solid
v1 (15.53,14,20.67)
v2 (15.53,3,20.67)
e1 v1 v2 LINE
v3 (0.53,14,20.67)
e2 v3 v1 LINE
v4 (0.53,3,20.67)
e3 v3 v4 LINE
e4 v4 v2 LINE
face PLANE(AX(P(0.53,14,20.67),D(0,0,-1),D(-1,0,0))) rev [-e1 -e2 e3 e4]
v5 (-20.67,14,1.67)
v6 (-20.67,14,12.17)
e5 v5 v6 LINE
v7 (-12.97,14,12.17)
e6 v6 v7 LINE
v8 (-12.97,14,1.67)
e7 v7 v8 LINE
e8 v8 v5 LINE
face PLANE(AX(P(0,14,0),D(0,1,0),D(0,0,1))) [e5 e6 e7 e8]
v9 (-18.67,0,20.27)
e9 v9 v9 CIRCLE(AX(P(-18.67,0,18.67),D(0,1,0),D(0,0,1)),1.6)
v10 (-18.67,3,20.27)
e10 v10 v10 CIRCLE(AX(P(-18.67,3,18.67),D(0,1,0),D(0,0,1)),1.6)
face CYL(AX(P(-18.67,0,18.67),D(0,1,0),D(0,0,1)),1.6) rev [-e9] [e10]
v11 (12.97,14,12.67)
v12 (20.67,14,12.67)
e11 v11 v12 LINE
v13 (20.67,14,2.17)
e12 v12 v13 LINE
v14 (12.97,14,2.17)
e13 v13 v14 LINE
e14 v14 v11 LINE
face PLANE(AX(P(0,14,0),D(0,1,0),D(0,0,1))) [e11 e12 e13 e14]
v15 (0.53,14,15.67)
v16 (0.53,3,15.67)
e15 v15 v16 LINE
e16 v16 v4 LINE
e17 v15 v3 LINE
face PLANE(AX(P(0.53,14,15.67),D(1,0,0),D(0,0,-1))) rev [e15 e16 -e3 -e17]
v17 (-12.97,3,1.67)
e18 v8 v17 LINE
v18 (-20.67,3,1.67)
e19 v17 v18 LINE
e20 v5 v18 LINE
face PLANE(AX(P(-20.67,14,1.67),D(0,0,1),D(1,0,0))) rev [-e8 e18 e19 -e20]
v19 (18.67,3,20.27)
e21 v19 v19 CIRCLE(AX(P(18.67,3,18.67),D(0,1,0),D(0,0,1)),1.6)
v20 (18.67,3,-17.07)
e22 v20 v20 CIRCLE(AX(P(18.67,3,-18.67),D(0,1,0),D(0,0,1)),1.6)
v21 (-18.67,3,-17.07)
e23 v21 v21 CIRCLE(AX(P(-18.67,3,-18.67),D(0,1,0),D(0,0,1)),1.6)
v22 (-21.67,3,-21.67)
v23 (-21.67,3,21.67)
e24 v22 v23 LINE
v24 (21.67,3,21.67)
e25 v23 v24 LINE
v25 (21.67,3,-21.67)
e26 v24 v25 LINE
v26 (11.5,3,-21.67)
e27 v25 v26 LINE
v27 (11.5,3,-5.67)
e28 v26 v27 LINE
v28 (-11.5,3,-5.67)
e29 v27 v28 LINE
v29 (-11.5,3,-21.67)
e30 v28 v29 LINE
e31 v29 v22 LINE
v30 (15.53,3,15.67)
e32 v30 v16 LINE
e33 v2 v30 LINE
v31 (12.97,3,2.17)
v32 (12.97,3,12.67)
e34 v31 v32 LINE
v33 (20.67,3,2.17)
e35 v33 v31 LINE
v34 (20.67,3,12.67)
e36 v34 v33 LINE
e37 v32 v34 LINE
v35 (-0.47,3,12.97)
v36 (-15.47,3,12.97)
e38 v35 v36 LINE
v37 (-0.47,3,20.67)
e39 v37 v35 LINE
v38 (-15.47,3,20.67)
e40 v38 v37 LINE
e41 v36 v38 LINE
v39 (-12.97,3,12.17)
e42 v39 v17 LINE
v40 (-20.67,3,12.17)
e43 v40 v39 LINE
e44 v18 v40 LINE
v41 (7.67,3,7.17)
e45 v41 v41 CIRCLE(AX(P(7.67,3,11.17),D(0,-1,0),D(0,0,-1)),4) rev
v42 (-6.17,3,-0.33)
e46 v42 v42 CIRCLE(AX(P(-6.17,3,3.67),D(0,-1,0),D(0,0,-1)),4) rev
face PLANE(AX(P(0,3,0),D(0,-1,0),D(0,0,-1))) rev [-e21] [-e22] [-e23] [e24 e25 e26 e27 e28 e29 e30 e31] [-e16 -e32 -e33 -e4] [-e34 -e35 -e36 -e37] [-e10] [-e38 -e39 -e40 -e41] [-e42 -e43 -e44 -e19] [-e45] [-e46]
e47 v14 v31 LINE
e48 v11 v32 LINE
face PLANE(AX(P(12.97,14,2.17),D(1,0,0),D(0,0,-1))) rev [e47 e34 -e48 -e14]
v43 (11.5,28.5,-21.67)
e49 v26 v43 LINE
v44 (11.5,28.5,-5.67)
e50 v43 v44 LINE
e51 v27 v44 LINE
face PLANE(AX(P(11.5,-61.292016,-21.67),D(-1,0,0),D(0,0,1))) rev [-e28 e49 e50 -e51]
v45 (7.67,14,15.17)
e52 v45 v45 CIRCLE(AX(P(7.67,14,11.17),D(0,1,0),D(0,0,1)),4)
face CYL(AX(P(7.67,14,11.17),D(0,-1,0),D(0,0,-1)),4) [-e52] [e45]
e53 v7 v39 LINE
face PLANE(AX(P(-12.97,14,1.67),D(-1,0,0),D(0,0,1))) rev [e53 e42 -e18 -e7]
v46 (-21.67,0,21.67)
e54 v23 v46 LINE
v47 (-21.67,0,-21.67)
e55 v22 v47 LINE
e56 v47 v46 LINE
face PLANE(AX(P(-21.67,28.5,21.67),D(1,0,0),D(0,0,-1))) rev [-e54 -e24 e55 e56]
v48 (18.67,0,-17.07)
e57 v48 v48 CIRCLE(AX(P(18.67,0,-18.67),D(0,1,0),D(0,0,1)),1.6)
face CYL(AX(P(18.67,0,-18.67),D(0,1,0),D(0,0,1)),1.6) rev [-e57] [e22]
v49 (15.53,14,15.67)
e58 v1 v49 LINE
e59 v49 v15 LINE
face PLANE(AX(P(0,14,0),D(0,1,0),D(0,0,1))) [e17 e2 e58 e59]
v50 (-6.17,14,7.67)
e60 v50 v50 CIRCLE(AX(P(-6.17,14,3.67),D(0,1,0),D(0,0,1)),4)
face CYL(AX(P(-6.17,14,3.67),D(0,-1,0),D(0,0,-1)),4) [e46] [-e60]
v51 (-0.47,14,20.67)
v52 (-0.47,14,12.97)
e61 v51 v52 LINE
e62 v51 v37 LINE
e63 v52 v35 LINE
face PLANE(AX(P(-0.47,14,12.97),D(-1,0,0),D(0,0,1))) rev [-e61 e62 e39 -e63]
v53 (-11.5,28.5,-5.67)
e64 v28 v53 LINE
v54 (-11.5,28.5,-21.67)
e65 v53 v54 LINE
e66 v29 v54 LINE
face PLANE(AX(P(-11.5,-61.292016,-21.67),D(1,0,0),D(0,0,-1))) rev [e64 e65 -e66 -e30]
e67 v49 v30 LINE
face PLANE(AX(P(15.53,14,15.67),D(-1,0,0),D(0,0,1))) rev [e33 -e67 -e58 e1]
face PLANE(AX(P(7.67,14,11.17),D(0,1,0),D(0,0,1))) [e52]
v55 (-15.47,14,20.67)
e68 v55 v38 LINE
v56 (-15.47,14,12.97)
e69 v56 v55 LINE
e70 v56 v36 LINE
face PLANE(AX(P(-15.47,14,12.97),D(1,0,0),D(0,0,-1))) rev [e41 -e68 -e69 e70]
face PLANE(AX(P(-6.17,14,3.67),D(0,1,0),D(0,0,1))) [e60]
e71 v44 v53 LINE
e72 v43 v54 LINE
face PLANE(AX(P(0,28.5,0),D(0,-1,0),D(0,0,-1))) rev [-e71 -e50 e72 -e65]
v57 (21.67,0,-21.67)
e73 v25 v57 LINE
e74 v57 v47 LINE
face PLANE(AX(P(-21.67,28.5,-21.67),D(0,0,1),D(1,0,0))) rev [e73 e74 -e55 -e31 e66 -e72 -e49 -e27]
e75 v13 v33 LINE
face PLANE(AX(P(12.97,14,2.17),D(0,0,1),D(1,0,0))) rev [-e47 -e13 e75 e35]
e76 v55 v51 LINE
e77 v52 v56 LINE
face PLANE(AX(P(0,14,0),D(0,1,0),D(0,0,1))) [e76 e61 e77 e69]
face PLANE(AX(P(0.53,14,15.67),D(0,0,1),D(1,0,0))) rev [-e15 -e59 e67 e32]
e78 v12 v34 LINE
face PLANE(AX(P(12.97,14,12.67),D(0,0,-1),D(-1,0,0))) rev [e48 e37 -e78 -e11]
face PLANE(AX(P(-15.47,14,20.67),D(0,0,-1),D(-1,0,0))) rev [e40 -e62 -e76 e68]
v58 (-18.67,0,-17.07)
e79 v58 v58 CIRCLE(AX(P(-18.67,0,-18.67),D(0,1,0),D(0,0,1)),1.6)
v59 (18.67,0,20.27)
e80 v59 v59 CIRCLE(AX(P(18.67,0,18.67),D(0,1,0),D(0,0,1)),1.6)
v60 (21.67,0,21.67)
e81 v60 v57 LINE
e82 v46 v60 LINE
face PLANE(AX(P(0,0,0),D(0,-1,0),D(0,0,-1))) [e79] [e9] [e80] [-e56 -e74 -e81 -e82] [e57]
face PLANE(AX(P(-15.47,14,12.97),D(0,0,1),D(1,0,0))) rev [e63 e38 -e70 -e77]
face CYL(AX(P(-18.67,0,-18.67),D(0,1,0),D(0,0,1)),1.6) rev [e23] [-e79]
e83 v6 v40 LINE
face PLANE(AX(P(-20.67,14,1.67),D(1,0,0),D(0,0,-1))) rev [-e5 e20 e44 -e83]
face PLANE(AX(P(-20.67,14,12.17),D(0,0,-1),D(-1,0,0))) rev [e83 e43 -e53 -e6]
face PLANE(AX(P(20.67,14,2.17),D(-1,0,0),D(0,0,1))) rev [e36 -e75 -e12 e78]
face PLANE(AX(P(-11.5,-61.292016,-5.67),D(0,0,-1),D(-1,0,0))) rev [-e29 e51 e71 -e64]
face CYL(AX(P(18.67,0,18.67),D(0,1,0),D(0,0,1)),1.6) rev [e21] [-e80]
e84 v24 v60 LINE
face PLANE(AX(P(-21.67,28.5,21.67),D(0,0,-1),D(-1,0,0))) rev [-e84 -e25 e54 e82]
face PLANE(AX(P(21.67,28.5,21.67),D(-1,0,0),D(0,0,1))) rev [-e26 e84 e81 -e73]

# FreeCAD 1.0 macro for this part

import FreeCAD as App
import Part
import Sketcher
Q = App.Units.Quantity


def add_polygon(sketch, points):
    """Adds a closed chain of lines whose ends are joined by coincident constraints."""
    first, n = sketch.GeometryCount, len(points)
    for a, b in zip(points, points[1:] + points[:1]):
        sketch.addGeometry(Part.LineSegment(App.Vector(*a, 0), App.Vector(*b, 0)), False)
    for i in range(n):
        sketch.addConstraint(Sketcher.Constraint("Coincident", first + i, 2, first + (i + 1) % n, 1))

doc = App.newDocument("Part")
body = doc.addObject("PartDesign::Body", "Body")

# Sketch on XZ plane
sketch1 = body.newObject("Sketcher::SketchObject", "Sketch")
sketch1.AttachmentSupport = (doc.getObject("XZ_Plane"), [""])
sketch1.MapMode = "FlatFace"
add_polygon(sketch1, [(-21.67, -21.67), (-21.67, 21.67), (21.67, 21.67), (21.67, -21.67)])  # lines 0-3
sketch1.addConstraint(Sketcher.Constraint("Vertical", 0))
sketch1.addConstraint(Sketcher.Constraint("Horizontal", 1))
sketch1.addConstraint(Sketcher.Constraint("Vertical", 2))
sketch1.addConstraint(Sketcher.Constraint("Horizontal", 3))
sketch1.addConstraint(Sketcher.Constraint("Symmetric", 0, 2, 2, 2, -1, 1))
sketch1.addConstraint(Sketcher.Constraint("Equal", 3, 0))
sketch1.addConstraint(Sketcher.Constraint("DistanceX", 1, 1, 1, 2, Q("43.34 mm")))
pad1 = body.newObject("PartDesign::Pad", "Pad")
pad1.Profile = sketch1
pad1.Length = 28.5
pad1.Reversed = True

# Sketch on XZ plane
sketch2 = body.newObject("Sketcher::SketchObject", "Sketch001")
sketch2.AttachmentSupport = (doc.getObject("XZ_Plane"), [""])
sketch2.MapMode = "FlatFace"
sketch2.AttachmentOffset = App.Placement(App.Vector(0, 0, -28.5), App.Rotation())
add_polygon(sketch2, [(-11.5, -5.67), (-11.5, -21.67), (-21.67, -21.67), (-21.67, 21.67), (21.67, 21.67), (21.67, -21.67), (11.5, -21.67), (11.5, -5.67)])  # lines 0-7
sketch2.addConstraint(Sketcher.Constraint("Vertical", 0))
sketch2.addConstraint(Sketcher.Constraint("Horizontal", 1))
sketch2.addConstraint(Sketcher.Constraint("Vertical", 2))
sketch2.addConstraint(Sketcher.Constraint("Horizontal", 3))
sketch2.addConstraint(Sketcher.Constraint("Vertical", 4))
sketch2.addConstraint(Sketcher.Constraint("Horizontal", 5))
sketch2.addConstraint(Sketcher.Constraint("Vertical", 6))
sketch2.addConstraint(Sketcher.Constraint("Horizontal", 7))
sketch2.addConstraint(Sketcher.Constraint("Symmetric", 1, 2, 3, 2, -1, 1))
sketch2.addConstraint(Sketcher.Constraint("Symmetric", 0, 2, 5, 2, -2))
sketch2.addConstraint(Sketcher.Constraint("Equal", 3, 2))
sketch2.addConstraint(Sketcher.Constraint("DistanceX", 7, 2, 7, 1, Q("23 mm")))
sketch2.addConstraint(Sketcher.Constraint("DistanceY", 0, 2, 0, 1, Q("16 mm")))
sketch2.addConstraint(Sketcher.Constraint("DistanceX", 1, 2, 1, 1, Q("10.17 mm")))
pocket1 = body.newObject("PartDesign::Pocket", "Pocket")
pocket1.Profile = sketch2
pocket1.Length = 25.5
pocket1.Reversed = True

# Sketch on XZ plane
sketch3 = body.newObject("Sketcher::SketchObject", "Sketch002")
sketch3.AttachmentSupport = (doc.getObject("XZ_Plane"), [""])
sketch3.MapMode = "FlatFace"
sketch3.AttachmentOffset = App.Placement(App.Vector(0, 0, -3), App.Rotation())
sketch3.addGeometry(Part.Circle(App.Vector(-6.17, 3.67, 0), App.Vector(0, 0, 1), 4), False)  # 0
sketch3.addGeometry(Part.Circle(App.Vector(7.67, 11.17, 0), App.Vector(0, 0, 1), 4), False)  # 1
add_polygon(sketch3, [(-20.67, 1.67), (-20.67, 12.17), (-12.97, 12.17), (-12.97, 1.67)])  # lines 2-5
add_polygon(sketch3, [(-15.47, 12.97), (-15.47, 20.67), (-0.47, 20.67), (-0.47, 12.97)])  # lines 6-9
add_polygon(sketch3, [(0.53, 15.67), (0.53, 20.67), (15.53, 20.67), (15.53, 15.67)])  # lines 10-13
add_polygon(sketch3, [(12.97, 2.17), (12.97, 12.67), (20.67, 12.67), (20.67, 2.17)])  # lines 14-17
sketch3.addConstraint(Sketcher.Constraint("Vertical", 2))
sketch3.addConstraint(Sketcher.Constraint("Horizontal", 3))
sketch3.addConstraint(Sketcher.Constraint("Vertical", 4))
sketch3.addConstraint(Sketcher.Constraint("Horizontal", 5))
sketch3.addConstraint(Sketcher.Constraint("Vertical", 6))
sketch3.addConstraint(Sketcher.Constraint("Horizontal", 7))
sketch3.addConstraint(Sketcher.Constraint("Vertical", 8))
sketch3.addConstraint(Sketcher.Constraint("Horizontal", 9))
sketch3.addConstraint(Sketcher.Constraint("Vertical", 10))
sketch3.addConstraint(Sketcher.Constraint("Horizontal", 11))
sketch3.addConstraint(Sketcher.Constraint("Vertical", 12))
sketch3.addConstraint(Sketcher.Constraint("Horizontal", 13))
sketch3.addConstraint(Sketcher.Constraint("Vertical", 14))
sketch3.addConstraint(Sketcher.Constraint("Horizontal", 15))
sketch3.addConstraint(Sketcher.Constraint("Vertical", 16))
sketch3.addConstraint(Sketcher.Constraint("Horizontal", 17))
sketch3.addConstraint(Sketcher.Constraint("Equal", 0, 1))
sketch3.addConstraint(Sketcher.Constraint("Horizontal", 7, 2, 10, 2))
sketch3.addConstraint(Sketcher.Constraint("Equal", 9, 11))
sketch3.addConstraint(Sketcher.Constraint("Equal", 5, 15))
sketch3.addConstraint(Sketcher.Constraint("Equal", 17, 6))
sketch3.addConstraint(Sketcher.Constraint("Equal", 4, 14))
sketch3.addConstraint(Sketcher.Constraint("Diameter", 0, Q("8 mm")))
sketch3.addConstraint(Sketcher.Constraint("DistanceX", 7, 1, 7, 2, Q("15 mm")))
sketch3.addConstraint(Sketcher.Constraint("DistanceY", 10, 1, 10, 2, Q("5 mm")))
sketch3.addConstraint(Sketcher.Constraint("DistanceX", 3, 1, 3, 2, Q("7.7 mm")))
sketch3.addConstraint(Sketcher.Constraint("DistanceY", 2, 1, 2, 2, Q("10.5 mm")))
sketch3.addConstraint(Sketcher.Constraint("DistanceY", 1, 3, 2, 2, Q("1 mm")))
sketch3.addConstraint(Sketcher.Constraint("DistanceY", 4, 2, 0, 3, Q("2 mm")))
sketch3.addConstraint(Sketcher.Constraint("DistanceY", 4, 2, 6, 2, Q("19 mm")))
sketch3.addConstraint(Sketcher.Constraint("DistanceX", 7, 2, 10, 2, Q("1 mm")))
sketch3.addConstraint(Sketcher.Constraint("DistanceY", 14, 2, 12, 2, Q("3 mm")))
sketch3.addConstraint(Sketcher.Constraint("DistanceX", 1, 3, 15, 2, Q("13 mm")))
sketch3.addConstraint(Sketcher.Constraint("DistanceX", 2, 2, 0, 3, Q("14.5 mm")))
sketch3.addConstraint(Sketcher.Constraint("DistanceX", 6, 2, 3, 2, Q("2.5 mm")))
sketch3.addConstraint(Sketcher.Constraint("DistanceX", 0, 3, -1, 1, Q("6.17 mm")))
sketch3.addConstraint(Sketcher.Constraint("DistanceY", -1, 1, 0, 3, Q("3.67 mm")))
sketch3.addConstraint(Sketcher.Constraint("DistanceX", -1, 1, 1, 3, Q("7.67 mm")))
pad2 = body.newObject("PartDesign::Pad", "Pad001")
pad2.Profile = sketch3
pad2.Length = 11
pad2.Reversed = True

# Sketch on XZ plane
sketch4 = body.newObject("Sketcher::SketchObject", "Sketch003")
sketch4.AttachmentSupport = (doc.getObject("XZ_Plane"), [""])
sketch4.MapMode = "FlatFace"
sketch4.AttachmentOffset = App.Placement(App.Vector(0, 0, -3), App.Rotation())
sketch4.addGeometry(Part.Circle(App.Vector(-18.67, -18.67, 0), App.Vector(0, 0, 1), 1.6), False)
sketch4.addGeometry(Part.Circle(App.Vector(18.67, -18.67, 0), App.Vector(0, 0, 1), 1.6), False)
sketch4.addGeometry(Part.Circle(App.Vector(18.67, 18.67, 0), App.Vector(0, 0, 1), 1.6), False)
sketch4.addGeometry(Part.Circle(App.Vector(-18.67, 18.67, 0), App.Vector(0, 0, 1), 1.6), False)
sketch4.addConstraint(Sketcher.Constraint("Equal", 0, 1))
sketch4.addConstraint(Sketcher.Constraint("Equal", 1, 2))
sketch4.addConstraint(Sketcher.Constraint("Equal", 2, 3))
sketch4.addConstraint(Sketcher.Constraint("Symmetric", 0, 3, 2, 3, -1, 1))
sketch4.addConstraint(Sketcher.Constraint("Symmetric", 1, 3, 3, 3, -1, 1))
sketch4.addConstraint(Sketcher.Constraint("Symmetric", 0, 3, 1, 3, -2))
sketch4.addConstraint(Sketcher.Constraint("Diameter", 0, Q("3.2 mm")))
sketch4.addConstraint(Sketcher.Constraint("DistanceX", 0, 3, -1, 1, Q("18.67 mm")))
sketch4.addConstraint(Sketcher.Constraint("DistanceY", 0, 3, -1, 1, Q("18.67 mm")))
pocket2 = body.newObject("PartDesign::Pocket", "Pocket001")
pocket2.Profile = sketch4
pocket2.Type = "ThroughAll"
pocket2.Reversed = True

doc.recompute()
